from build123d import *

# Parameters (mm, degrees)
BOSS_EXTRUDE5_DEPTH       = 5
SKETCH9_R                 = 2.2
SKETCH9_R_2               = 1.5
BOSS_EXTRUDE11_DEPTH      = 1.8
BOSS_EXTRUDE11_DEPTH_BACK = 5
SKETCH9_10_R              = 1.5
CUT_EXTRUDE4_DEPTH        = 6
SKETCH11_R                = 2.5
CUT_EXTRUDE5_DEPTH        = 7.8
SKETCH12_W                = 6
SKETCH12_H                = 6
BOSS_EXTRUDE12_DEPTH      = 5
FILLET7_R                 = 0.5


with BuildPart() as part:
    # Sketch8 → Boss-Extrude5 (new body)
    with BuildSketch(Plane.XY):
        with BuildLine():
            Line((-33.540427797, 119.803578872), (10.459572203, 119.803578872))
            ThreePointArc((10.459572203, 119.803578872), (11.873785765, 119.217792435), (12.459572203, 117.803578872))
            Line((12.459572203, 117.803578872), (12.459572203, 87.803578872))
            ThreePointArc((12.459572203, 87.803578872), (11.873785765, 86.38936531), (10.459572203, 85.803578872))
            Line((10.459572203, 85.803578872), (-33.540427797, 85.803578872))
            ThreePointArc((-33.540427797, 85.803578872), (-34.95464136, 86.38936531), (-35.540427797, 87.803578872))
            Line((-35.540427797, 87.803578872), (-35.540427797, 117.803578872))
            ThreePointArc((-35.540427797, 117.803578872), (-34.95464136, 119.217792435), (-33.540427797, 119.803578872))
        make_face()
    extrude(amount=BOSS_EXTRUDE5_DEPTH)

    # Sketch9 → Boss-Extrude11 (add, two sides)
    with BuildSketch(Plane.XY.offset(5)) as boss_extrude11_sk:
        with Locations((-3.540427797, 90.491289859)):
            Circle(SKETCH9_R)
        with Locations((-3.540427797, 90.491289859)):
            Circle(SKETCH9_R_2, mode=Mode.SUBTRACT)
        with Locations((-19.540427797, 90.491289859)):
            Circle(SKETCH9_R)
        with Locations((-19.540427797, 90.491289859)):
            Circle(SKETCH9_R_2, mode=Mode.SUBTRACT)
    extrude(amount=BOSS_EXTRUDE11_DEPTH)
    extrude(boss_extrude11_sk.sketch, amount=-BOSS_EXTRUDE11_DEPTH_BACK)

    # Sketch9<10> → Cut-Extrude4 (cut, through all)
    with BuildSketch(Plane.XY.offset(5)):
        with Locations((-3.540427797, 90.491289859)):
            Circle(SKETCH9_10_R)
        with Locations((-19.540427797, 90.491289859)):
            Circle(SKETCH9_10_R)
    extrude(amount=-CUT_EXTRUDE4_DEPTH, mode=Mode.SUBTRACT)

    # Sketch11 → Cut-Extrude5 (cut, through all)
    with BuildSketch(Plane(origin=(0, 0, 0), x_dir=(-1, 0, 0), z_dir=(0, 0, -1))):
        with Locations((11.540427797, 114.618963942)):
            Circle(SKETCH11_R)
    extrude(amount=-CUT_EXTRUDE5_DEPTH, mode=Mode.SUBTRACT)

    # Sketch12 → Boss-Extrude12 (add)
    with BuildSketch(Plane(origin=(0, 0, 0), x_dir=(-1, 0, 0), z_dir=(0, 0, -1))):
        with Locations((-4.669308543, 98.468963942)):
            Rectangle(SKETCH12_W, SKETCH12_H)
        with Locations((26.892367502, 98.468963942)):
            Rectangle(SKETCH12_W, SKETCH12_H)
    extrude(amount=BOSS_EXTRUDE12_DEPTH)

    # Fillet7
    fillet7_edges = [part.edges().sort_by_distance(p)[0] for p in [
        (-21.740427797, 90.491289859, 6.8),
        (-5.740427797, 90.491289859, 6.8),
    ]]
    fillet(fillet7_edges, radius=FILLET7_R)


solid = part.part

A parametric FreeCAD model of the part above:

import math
import FreeCAD as App
import Part
import Sketcher


def edges_at(feature, points):
    """Names of the edges that pass closest to the given points."""
    edges = feature.Shape.Edges
    near = lambda p: min(range(len(edges)), key=lambda i: edges[i].distToShape(Part.Vertex(*p))[0])
    return sorted({f"Edge{near(p) + 1}" for p in points})

doc = App.newDocument("Part")
body = doc.addObject("PartDesign::Body", "Body")

sketch1 = body.newObject("Sketcher::SketchObject", "Sketch")
sketch1.AttachmentSupport = (doc.getObject("XY_Plane"), [""])
sketch1.MapMode = "FlatFace"
sketch1.addGeometry([
    Part.LineSegment(App.Vector(10.459572, 119.803579, 0), App.Vector(-33.540428, 119.803579, 0)),
    Part.ArcOfCircle(Part.Circle(App.Vector(-33.540428, 117.803579, 0), App.Vector(0, 0, 1), 2), math.radians(90), math.radians(180)),
    Part.LineSegment(App.Vector(-35.540428, 117.803579, 0), App.Vector(-35.540428, 87.803579, 0)),
    Part.ArcOfCircle(Part.Circle(App.Vector(-33.540428, 87.803579, 0), App.Vector(0, 0, 1), 2), math.radians(180), math.radians(270)),
    Part.LineSegment(App.Vector(-33.540428, 85.803579, 0), App.Vector(10.459572, 85.803579, 0)),
    Part.ArcOfCircle(Part.Circle(App.Vector(10.459572, 87.803579, 0), App.Vector(0, 0, 1), 2), math.radians(-90), math.radians(0)),
    Part.LineSegment(App.Vector(12.459572, 87.803579, 0), App.Vector(12.459572, 117.803579, 0)),
    Part.ArcOfCircle(Part.Circle(App.Vector(10.459572, 117.803579, 0), App.Vector(0, 0, 1), 2), math.radians(0), math.radians(90)),
], False)
sketch1.addConstraint([
    Sketcher.Constraint("Tangent", 0, 2, 1, 1),
    Sketcher.Constraint("Tangent", 1, 2, 2, 1),
    Sketcher.Constraint("Tangent", 2, 2, 3, 1),
    Sketcher.Constraint("Tangent", 3, 2, 4, 1),
    Sketcher.Constraint("Tangent", 4, 2, 5, 1),
    Sketcher.Constraint("Tangent", 5, 2, 6, 1),
    Sketcher.Constraint("Tangent", 6, 2, 7, 1),
    Sketcher.Constraint("Tangent", 7, 2, 0, 1),
    Sketcher.Constraint("Horizontal", 0),
    Sketcher.Constraint("Vertical", 2),
    Sketcher.Constraint("Horizontal", 4),
    Sketcher.Constraint("Vertical", 6),
    Sketcher.Constraint("Equal", 1, 3),
    Sketcher.Constraint("Equal", 3, 5),
    Sketcher.Constraint("Equal", 5, 7),
    Sketcher.Constraint("Radius", 1, 2.0),
    Sketcher.Constraint("DistanceX", 0, 2, 0, 1, 44.0),
    Sketcher.Constraint("DistanceY", 2, 2, 2, 1, 30.0),
    Sketcher.Constraint("DistanceY", -1, 1, 1, 3, 117.803579),
    Sketcher.Constraint("DistanceX", 1, 3, -1, 1, 33.540428),
])
pad1 = body.newObject("PartDesign::Pad", "Pad")
pad1.Profile = sketch1
pad1.Length = 5

sketch2 = body.newObject("Sketcher::SketchObject", "Sketch001")
sketch2.AttachmentSupport = (doc.getObject("XY_Plane"), [""])
sketch2.MapMode = "FlatFace"
sketch2.AttachmentOffset = App.Placement(App.Vector(0, 0, 5), App.Rotation())
sketch2.addGeometry([
    Part.Circle(App.Vector(-3.540428, 90.49129, 0), App.Vector(0, 0, 1), 2.2),
    Part.Circle(App.Vector(-3.540428, 90.49129, 0), App.Vector(0, 0, 1), 1.5),
    Part.Circle(App.Vector(-19.540428, 90.49129, 0), App.Vector(0, 0, 1), 2.2),
    Part.Circle(App.Vector(-19.540428, 90.49129, 0), App.Vector(0, 0, 1), 1.5),
], False)
sketch2.addConstraint([
    Sketcher.Constraint("Coincident", 1, 3, 0, 3),
    Sketcher.Constraint("Coincident", 3, 3, 2, 3),
    Sketcher.Constraint("Equal", 0, 2),
    Sketcher.Constraint("Equal", 1, 3),
    Sketcher.Constraint("Horizontal", 1, 3, 2, 3),
    Sketcher.Constraint("Diameter", 1, 3.0),
    Sketcher.Constraint("Diameter", 0, 4.4),
    Sketcher.Constraint("DistanceX", 2, 3, 0, 3, 16.0),
    Sketcher.Constraint("DistanceY", -1, 1, 0, 3, 90.49129),
    Sketcher.Constraint("DistanceX", 0, 3, -1, 1, 3.540428),
])
pad2 = body.newObject("PartDesign::Pad", "Pad001")
pad2.Profile = sketch2
pad2.Type = "TwoLengths"
pad2.Length = 1.8
pad2.Length2 = 5

sketch3 = body.newObject("Sketcher::SketchObject", "Sketch002")
sketch3.AttachmentSupport = (doc.getObject("XY_Plane"), [""])
sketch3.MapMode = "FlatFace"
sketch3.AttachmentOffset = App.Placement(App.Vector(0, 0, 5), App.Rotation())
sketch3.addGeometry([
    Part.Circle(App.Vector(-3.540428, 90.49129, 0), App.Vector(0, 0, 1), 1.5),
    Part.Circle(App.Vector(-19.540428, 90.49129, 0), App.Vector(0, 0, 1), 1.5),
], False)
sketch3.addConstraint([
    Sketcher.Constraint("Equal", 0, 1),
    Sketcher.Constraint("Horizontal", 0, 3, 1, 3),
    Sketcher.Constraint("Diameter", 0, 3.0),
    Sketcher.Constraint("DistanceX", 1, 3, 0, 3, 16.0),
    Sketcher.Constraint("DistanceY", -1, 1, 0, 3, 90.49129),
    Sketcher.Constraint("DistanceX", 0, 3, -1, 1, 3.540428),
])
pocket1 = body.newObject("PartDesign::Pocket", "Pocket")
pocket1.Profile = sketch3
pocket1.Type = "ThroughAll"

sketch4 = body.newObject("Sketcher::SketchObject", "Sketch003")
sketch4.AttachmentSupport = (doc.getObject("XY_Plane"), [""])
sketch4.MapMode = "FlatFace"
sketch4.addGeometry(Part.Circle(App.Vector(-11.540428, 114.618964, 0), App.Vector(0, 0, 1), 2.5), False)
sketch4.addConstraint([
    Sketcher.Constraint("Diameter", 0, 5.0),
    Sketcher.Constraint("DistanceX", 0, 3, -1, 1, 11.540428),
    Sketcher.Constraint("DistanceY", -1, 1, 0, 3, 114.618964),
])
pocket2 = body.newObject("PartDesign::Pocket", "Pocket001")
pocket2.Profile = sketch4
pocket2.Type = "ThroughAll"
pocket2.Reversed = True

sketch5 = body.newObject("Sketcher::SketchObject", "Sketch004")
sketch5.AttachmentSupport = (doc.getObject("XY_Plane"), [""])
sketch5.MapMode = "FlatFace"
sketch5.addGeometry([
    Part.LineSegment(App.Vector(7.669309, 101.468964, 0), App.Vector(7.669309, 95.468964, 0)),
    Part.LineSegment(App.Vector(7.669309, 95.468964, 0), App.Vector(1.669309, 95.468964, 0)),
    Part.LineSegment(App.Vector(1.669309, 95.468964, 0), App.Vector(1.669309, 101.468964, 0)),
    Part.LineSegment(App.Vector(1.669309, 101.468964, 0), App.Vector(7.669309, 101.468964, 0)),
    Part.LineSegment(App.Vector(-23.892368, 101.468964, 0), App.Vector(-23.892368, 95.468964, 0)),
    Part.LineSegment(App.Vector(-23.892368, 95.468964, 0), App.Vector(-29.892368, 95.468964, 0)),
    Part.LineSegment(App.Vector(-29.892368, 95.468964, 0), App.Vector(-29.892368, 101.468964, 0)),
    Part.LineSegment(App.Vector(-29.892368, 101.468964, 0), App.Vector(-23.892368, 101.468964, 0)),
], False)
sketch5.addConstraint([
    Sketcher.Constraint("Coincident", 0, 2, 1, 1),
    Sketcher.Constraint("Coincident", 1, 2, 2, 1),
    Sketcher.Constraint("Coincident", 2, 2, 3, 1),
    Sketcher.Constraint("Coincident", 3, 2, 0, 1),
    Sketcher.Constraint("Coincident", 4, 2, 5, 1),
    Sketcher.Constraint("Coincident", 5, 2, 6, 1),
    Sketcher.Constraint("Coincident", 6, 2, 7, 1),
    Sketcher.Constraint("Coincident", 7, 2, 4, 1),
    Sketcher.Constraint("Vertical", 0),
    Sketcher.Constraint("Horizontal", 1),
    Sketcher.Constraint("Vertical", 2),
    Sketcher.Constraint("Horizontal", 3),
    Sketcher.Constraint("Vertical", 4),
    Sketcher.Constraint("Horizontal", 5),
    Sketcher.Constraint("Vertical", 6),
    Sketcher.Constraint("Horizontal", 7),
    Sketcher.Constraint("Horizontal", 1, 2, 4, 2),
    Sketcher.Constraint("Horizontal", 3, 2, 6, 2),
    Sketcher.Constraint("Equal", 3, 5),
    Sketcher.Constraint("Equal", 7, 0),
    Sketcher.Constraint("DistanceX", 1, 2, 1, 1, 6.0),
    Sketcher.Constraint("DistanceX", -1, 1, 0, 2, 7.669309),
    Sketcher.Constraint("DistanceY", -1, 1, 0, 2, 95.468964),
    Sketcher.Constraint("DistanceX", 4, 2, -1, 1, 23.892368),
])
pad3 = body.newObject("PartDesign::Pad", "Pad002")
pad3.Profile = sketch5
pad3.Length = 5
pad3.Reversed = True
doc.recompute()

fillet = body.newObject("PartDesign::Fillet", "Fillet")
fillet.Base = (pad3, edges_at(pad3, [(-21.74, 90.491, 6.8), (-5.74, 90.491, 6.8)]))
fillet.Radius = 0.5

doc.recompute()
